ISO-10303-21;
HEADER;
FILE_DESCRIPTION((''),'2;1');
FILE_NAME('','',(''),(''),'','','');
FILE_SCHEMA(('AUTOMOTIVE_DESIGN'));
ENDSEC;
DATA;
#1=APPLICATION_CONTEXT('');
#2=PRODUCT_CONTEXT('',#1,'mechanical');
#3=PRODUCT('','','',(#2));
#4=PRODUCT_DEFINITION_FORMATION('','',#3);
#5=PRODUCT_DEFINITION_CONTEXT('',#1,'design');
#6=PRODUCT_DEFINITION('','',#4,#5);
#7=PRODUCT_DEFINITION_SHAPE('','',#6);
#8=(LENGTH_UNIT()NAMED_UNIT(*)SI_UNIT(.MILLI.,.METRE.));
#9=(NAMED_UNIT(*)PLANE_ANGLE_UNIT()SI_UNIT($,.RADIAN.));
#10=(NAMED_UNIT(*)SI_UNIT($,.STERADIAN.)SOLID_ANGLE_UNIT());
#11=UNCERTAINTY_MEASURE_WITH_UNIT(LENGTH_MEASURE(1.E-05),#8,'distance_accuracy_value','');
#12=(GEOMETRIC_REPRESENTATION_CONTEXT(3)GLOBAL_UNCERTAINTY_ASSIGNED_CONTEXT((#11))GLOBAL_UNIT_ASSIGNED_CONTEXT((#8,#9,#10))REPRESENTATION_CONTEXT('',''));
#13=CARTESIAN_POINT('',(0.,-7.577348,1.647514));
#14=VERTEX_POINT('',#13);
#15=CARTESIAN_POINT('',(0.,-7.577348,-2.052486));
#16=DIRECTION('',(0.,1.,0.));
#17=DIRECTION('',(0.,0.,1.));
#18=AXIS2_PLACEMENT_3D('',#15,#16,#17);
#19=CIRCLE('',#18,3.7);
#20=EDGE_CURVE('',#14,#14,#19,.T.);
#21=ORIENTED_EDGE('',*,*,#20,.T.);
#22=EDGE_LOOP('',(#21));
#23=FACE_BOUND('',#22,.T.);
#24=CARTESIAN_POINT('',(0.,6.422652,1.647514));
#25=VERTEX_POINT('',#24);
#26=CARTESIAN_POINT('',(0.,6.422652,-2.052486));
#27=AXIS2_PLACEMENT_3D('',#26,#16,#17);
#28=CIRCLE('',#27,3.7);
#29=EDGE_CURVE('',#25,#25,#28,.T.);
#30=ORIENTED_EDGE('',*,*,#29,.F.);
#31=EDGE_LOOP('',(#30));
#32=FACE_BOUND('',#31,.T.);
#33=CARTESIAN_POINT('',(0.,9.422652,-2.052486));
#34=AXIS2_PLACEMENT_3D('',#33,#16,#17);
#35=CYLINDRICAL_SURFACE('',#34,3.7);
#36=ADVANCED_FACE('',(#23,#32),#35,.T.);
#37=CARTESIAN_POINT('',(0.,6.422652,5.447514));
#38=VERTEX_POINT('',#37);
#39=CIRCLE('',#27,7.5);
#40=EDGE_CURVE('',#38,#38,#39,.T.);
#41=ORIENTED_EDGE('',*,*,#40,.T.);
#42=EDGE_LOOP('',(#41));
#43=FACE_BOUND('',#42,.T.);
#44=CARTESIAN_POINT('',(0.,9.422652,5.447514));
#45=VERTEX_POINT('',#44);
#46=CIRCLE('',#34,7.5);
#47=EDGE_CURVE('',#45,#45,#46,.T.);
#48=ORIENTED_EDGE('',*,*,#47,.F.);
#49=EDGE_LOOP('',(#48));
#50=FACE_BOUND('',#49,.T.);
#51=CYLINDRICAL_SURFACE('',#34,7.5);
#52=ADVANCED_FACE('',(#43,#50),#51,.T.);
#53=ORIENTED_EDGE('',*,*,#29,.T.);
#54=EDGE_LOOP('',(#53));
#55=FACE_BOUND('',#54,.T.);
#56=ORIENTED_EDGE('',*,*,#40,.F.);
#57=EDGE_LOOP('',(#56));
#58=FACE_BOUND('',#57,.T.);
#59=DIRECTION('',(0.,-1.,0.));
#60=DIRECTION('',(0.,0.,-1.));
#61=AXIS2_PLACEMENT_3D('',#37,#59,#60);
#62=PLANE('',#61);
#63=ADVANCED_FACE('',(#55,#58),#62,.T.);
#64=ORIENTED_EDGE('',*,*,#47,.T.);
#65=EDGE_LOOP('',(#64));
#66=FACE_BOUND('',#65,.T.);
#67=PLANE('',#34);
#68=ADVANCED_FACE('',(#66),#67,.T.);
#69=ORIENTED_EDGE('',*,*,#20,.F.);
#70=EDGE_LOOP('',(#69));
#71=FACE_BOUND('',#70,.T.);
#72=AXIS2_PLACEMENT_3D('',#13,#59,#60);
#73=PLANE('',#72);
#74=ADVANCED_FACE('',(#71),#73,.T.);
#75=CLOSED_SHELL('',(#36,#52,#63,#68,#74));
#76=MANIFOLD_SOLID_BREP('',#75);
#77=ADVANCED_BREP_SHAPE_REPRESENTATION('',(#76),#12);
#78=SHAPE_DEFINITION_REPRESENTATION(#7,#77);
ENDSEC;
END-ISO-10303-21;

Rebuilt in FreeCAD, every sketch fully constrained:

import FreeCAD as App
import Part
import Sketcher


def add_polygon(sketch, points):
    """Adds a closed chain of lines whose ends are joined by coincident constraints."""
    first, n = sketch.GeometryCount, len(points)
    for a, b in zip(points, points[1:] + points[:1]):
        sketch.addGeometry(Part.LineSegment(App.Vector(*a, 0), App.Vector(*b, 0)), False)
    for i in range(n):
        sketch.addConstraint(Sketcher.Constraint("Coincident", first + i, 2, first + (i + 1) % n, 1))

doc = App.newDocument("Part")
params = doc.addObject("Spreadsheet::Sheet", "Params")
for row, (alias, value) in enumerate([
    ("sketch1_width", "3 mm"),
    ("sketch1_width2", "14 mm"),
    ("sketch1_height", "7.5 mm"),
    ("sketch1_height2", "3.8 mm"),
    ("revolution_angle", "360 deg"),
], start=1):
    params.set(f"A{row}", alias)
    params.set(f"B{row}", "=" + value)
    params.setAlias(f"B{row}", alias)

body = doc.addObject("PartDesign::Body", "Body")

sketch1 = body.newObject("Sketcher::SketchObject", "Sketch")
sketch1.AttachmentSupport = (doc.getObject("YZ_Plane"), [""])
sketch1.MapMode = "FlatFace"
add_polygon(sketch1, [(9.4, -2.1), (9.4, 5.4), (6.4, 5.4), (6.4, 1.6), (-7.6, 1.6), (-7.6, -2.1)])
sketch1.addGeometry(Part.LineSegment(App.Vector(9.4, -2.1, 0), App.Vector(-7.6, -2.1, 0)), True)
sketch1.addConstraint(Sketcher.Constraint("Vertical", 0))
sketch1.addConstraint(Sketcher.Constraint("Horizontal", 1))
sketch1.addConstraint(Sketcher.Constraint("Vertical", 2))
sketch1.addConstraint(Sketcher.Constraint("Horizontal", 3))
sketch1.addConstraint(Sketcher.Constraint("Vertical", 4))
sketch1.addConstraint(Sketcher.Constraint("Horizontal", 5))
sketch1.addConstraint(Sketcher.Constraint("Horizontal", 6))
sketch1.addConstraint(Sketcher.Constraint("Coincident", 6, 1, 5, 2))
sketch1.addConstraint(Sketcher.Constraint("Vertical", 3, 2, 6, 2))
sketch1.addConstraint(Sketcher.Constraint("DistanceX", 1, 2, 1, 1, 3.0))
sketch1.addConstraint(Sketcher.Constraint("DistanceX", 3, 2, 3, 1, 14.0))
sketch1.addConstraint(Sketcher.Constraint("DistanceY", 0, 1, 0, 2, 7.5))
sketch1.addConstraint(Sketcher.Constraint("DistanceY", 2, 2, 2, 1, 3.8))
sketch1.addConstraint(Sketcher.Constraint("DistanceX", -1, 1, 0, 2, 9.422652))
sketch1.addConstraint(Sketcher.Constraint("DistanceY", -1, 1, 0, 2, 5.447514))
sketch1.setExpression("Constraints[15]", "Params.sketch1_width")
sketch1.setExpression("Constraints[16]", "Params.sketch1_width2")
sketch1.setExpression("Constraints[17]", "Params.sketch1_height")
sketch1.setExpression("Constraints[18]", "Params.sketch1_height2")
revolution = body.newObject("PartDesign::Revolution", "Revolution")
revolution.Profile = sketch1
revolution.ReferenceAxis = (sketch1, ["Axis0"])
revolution.setExpression("Angle", "Params.revolution_angle")

doc.recompute()
